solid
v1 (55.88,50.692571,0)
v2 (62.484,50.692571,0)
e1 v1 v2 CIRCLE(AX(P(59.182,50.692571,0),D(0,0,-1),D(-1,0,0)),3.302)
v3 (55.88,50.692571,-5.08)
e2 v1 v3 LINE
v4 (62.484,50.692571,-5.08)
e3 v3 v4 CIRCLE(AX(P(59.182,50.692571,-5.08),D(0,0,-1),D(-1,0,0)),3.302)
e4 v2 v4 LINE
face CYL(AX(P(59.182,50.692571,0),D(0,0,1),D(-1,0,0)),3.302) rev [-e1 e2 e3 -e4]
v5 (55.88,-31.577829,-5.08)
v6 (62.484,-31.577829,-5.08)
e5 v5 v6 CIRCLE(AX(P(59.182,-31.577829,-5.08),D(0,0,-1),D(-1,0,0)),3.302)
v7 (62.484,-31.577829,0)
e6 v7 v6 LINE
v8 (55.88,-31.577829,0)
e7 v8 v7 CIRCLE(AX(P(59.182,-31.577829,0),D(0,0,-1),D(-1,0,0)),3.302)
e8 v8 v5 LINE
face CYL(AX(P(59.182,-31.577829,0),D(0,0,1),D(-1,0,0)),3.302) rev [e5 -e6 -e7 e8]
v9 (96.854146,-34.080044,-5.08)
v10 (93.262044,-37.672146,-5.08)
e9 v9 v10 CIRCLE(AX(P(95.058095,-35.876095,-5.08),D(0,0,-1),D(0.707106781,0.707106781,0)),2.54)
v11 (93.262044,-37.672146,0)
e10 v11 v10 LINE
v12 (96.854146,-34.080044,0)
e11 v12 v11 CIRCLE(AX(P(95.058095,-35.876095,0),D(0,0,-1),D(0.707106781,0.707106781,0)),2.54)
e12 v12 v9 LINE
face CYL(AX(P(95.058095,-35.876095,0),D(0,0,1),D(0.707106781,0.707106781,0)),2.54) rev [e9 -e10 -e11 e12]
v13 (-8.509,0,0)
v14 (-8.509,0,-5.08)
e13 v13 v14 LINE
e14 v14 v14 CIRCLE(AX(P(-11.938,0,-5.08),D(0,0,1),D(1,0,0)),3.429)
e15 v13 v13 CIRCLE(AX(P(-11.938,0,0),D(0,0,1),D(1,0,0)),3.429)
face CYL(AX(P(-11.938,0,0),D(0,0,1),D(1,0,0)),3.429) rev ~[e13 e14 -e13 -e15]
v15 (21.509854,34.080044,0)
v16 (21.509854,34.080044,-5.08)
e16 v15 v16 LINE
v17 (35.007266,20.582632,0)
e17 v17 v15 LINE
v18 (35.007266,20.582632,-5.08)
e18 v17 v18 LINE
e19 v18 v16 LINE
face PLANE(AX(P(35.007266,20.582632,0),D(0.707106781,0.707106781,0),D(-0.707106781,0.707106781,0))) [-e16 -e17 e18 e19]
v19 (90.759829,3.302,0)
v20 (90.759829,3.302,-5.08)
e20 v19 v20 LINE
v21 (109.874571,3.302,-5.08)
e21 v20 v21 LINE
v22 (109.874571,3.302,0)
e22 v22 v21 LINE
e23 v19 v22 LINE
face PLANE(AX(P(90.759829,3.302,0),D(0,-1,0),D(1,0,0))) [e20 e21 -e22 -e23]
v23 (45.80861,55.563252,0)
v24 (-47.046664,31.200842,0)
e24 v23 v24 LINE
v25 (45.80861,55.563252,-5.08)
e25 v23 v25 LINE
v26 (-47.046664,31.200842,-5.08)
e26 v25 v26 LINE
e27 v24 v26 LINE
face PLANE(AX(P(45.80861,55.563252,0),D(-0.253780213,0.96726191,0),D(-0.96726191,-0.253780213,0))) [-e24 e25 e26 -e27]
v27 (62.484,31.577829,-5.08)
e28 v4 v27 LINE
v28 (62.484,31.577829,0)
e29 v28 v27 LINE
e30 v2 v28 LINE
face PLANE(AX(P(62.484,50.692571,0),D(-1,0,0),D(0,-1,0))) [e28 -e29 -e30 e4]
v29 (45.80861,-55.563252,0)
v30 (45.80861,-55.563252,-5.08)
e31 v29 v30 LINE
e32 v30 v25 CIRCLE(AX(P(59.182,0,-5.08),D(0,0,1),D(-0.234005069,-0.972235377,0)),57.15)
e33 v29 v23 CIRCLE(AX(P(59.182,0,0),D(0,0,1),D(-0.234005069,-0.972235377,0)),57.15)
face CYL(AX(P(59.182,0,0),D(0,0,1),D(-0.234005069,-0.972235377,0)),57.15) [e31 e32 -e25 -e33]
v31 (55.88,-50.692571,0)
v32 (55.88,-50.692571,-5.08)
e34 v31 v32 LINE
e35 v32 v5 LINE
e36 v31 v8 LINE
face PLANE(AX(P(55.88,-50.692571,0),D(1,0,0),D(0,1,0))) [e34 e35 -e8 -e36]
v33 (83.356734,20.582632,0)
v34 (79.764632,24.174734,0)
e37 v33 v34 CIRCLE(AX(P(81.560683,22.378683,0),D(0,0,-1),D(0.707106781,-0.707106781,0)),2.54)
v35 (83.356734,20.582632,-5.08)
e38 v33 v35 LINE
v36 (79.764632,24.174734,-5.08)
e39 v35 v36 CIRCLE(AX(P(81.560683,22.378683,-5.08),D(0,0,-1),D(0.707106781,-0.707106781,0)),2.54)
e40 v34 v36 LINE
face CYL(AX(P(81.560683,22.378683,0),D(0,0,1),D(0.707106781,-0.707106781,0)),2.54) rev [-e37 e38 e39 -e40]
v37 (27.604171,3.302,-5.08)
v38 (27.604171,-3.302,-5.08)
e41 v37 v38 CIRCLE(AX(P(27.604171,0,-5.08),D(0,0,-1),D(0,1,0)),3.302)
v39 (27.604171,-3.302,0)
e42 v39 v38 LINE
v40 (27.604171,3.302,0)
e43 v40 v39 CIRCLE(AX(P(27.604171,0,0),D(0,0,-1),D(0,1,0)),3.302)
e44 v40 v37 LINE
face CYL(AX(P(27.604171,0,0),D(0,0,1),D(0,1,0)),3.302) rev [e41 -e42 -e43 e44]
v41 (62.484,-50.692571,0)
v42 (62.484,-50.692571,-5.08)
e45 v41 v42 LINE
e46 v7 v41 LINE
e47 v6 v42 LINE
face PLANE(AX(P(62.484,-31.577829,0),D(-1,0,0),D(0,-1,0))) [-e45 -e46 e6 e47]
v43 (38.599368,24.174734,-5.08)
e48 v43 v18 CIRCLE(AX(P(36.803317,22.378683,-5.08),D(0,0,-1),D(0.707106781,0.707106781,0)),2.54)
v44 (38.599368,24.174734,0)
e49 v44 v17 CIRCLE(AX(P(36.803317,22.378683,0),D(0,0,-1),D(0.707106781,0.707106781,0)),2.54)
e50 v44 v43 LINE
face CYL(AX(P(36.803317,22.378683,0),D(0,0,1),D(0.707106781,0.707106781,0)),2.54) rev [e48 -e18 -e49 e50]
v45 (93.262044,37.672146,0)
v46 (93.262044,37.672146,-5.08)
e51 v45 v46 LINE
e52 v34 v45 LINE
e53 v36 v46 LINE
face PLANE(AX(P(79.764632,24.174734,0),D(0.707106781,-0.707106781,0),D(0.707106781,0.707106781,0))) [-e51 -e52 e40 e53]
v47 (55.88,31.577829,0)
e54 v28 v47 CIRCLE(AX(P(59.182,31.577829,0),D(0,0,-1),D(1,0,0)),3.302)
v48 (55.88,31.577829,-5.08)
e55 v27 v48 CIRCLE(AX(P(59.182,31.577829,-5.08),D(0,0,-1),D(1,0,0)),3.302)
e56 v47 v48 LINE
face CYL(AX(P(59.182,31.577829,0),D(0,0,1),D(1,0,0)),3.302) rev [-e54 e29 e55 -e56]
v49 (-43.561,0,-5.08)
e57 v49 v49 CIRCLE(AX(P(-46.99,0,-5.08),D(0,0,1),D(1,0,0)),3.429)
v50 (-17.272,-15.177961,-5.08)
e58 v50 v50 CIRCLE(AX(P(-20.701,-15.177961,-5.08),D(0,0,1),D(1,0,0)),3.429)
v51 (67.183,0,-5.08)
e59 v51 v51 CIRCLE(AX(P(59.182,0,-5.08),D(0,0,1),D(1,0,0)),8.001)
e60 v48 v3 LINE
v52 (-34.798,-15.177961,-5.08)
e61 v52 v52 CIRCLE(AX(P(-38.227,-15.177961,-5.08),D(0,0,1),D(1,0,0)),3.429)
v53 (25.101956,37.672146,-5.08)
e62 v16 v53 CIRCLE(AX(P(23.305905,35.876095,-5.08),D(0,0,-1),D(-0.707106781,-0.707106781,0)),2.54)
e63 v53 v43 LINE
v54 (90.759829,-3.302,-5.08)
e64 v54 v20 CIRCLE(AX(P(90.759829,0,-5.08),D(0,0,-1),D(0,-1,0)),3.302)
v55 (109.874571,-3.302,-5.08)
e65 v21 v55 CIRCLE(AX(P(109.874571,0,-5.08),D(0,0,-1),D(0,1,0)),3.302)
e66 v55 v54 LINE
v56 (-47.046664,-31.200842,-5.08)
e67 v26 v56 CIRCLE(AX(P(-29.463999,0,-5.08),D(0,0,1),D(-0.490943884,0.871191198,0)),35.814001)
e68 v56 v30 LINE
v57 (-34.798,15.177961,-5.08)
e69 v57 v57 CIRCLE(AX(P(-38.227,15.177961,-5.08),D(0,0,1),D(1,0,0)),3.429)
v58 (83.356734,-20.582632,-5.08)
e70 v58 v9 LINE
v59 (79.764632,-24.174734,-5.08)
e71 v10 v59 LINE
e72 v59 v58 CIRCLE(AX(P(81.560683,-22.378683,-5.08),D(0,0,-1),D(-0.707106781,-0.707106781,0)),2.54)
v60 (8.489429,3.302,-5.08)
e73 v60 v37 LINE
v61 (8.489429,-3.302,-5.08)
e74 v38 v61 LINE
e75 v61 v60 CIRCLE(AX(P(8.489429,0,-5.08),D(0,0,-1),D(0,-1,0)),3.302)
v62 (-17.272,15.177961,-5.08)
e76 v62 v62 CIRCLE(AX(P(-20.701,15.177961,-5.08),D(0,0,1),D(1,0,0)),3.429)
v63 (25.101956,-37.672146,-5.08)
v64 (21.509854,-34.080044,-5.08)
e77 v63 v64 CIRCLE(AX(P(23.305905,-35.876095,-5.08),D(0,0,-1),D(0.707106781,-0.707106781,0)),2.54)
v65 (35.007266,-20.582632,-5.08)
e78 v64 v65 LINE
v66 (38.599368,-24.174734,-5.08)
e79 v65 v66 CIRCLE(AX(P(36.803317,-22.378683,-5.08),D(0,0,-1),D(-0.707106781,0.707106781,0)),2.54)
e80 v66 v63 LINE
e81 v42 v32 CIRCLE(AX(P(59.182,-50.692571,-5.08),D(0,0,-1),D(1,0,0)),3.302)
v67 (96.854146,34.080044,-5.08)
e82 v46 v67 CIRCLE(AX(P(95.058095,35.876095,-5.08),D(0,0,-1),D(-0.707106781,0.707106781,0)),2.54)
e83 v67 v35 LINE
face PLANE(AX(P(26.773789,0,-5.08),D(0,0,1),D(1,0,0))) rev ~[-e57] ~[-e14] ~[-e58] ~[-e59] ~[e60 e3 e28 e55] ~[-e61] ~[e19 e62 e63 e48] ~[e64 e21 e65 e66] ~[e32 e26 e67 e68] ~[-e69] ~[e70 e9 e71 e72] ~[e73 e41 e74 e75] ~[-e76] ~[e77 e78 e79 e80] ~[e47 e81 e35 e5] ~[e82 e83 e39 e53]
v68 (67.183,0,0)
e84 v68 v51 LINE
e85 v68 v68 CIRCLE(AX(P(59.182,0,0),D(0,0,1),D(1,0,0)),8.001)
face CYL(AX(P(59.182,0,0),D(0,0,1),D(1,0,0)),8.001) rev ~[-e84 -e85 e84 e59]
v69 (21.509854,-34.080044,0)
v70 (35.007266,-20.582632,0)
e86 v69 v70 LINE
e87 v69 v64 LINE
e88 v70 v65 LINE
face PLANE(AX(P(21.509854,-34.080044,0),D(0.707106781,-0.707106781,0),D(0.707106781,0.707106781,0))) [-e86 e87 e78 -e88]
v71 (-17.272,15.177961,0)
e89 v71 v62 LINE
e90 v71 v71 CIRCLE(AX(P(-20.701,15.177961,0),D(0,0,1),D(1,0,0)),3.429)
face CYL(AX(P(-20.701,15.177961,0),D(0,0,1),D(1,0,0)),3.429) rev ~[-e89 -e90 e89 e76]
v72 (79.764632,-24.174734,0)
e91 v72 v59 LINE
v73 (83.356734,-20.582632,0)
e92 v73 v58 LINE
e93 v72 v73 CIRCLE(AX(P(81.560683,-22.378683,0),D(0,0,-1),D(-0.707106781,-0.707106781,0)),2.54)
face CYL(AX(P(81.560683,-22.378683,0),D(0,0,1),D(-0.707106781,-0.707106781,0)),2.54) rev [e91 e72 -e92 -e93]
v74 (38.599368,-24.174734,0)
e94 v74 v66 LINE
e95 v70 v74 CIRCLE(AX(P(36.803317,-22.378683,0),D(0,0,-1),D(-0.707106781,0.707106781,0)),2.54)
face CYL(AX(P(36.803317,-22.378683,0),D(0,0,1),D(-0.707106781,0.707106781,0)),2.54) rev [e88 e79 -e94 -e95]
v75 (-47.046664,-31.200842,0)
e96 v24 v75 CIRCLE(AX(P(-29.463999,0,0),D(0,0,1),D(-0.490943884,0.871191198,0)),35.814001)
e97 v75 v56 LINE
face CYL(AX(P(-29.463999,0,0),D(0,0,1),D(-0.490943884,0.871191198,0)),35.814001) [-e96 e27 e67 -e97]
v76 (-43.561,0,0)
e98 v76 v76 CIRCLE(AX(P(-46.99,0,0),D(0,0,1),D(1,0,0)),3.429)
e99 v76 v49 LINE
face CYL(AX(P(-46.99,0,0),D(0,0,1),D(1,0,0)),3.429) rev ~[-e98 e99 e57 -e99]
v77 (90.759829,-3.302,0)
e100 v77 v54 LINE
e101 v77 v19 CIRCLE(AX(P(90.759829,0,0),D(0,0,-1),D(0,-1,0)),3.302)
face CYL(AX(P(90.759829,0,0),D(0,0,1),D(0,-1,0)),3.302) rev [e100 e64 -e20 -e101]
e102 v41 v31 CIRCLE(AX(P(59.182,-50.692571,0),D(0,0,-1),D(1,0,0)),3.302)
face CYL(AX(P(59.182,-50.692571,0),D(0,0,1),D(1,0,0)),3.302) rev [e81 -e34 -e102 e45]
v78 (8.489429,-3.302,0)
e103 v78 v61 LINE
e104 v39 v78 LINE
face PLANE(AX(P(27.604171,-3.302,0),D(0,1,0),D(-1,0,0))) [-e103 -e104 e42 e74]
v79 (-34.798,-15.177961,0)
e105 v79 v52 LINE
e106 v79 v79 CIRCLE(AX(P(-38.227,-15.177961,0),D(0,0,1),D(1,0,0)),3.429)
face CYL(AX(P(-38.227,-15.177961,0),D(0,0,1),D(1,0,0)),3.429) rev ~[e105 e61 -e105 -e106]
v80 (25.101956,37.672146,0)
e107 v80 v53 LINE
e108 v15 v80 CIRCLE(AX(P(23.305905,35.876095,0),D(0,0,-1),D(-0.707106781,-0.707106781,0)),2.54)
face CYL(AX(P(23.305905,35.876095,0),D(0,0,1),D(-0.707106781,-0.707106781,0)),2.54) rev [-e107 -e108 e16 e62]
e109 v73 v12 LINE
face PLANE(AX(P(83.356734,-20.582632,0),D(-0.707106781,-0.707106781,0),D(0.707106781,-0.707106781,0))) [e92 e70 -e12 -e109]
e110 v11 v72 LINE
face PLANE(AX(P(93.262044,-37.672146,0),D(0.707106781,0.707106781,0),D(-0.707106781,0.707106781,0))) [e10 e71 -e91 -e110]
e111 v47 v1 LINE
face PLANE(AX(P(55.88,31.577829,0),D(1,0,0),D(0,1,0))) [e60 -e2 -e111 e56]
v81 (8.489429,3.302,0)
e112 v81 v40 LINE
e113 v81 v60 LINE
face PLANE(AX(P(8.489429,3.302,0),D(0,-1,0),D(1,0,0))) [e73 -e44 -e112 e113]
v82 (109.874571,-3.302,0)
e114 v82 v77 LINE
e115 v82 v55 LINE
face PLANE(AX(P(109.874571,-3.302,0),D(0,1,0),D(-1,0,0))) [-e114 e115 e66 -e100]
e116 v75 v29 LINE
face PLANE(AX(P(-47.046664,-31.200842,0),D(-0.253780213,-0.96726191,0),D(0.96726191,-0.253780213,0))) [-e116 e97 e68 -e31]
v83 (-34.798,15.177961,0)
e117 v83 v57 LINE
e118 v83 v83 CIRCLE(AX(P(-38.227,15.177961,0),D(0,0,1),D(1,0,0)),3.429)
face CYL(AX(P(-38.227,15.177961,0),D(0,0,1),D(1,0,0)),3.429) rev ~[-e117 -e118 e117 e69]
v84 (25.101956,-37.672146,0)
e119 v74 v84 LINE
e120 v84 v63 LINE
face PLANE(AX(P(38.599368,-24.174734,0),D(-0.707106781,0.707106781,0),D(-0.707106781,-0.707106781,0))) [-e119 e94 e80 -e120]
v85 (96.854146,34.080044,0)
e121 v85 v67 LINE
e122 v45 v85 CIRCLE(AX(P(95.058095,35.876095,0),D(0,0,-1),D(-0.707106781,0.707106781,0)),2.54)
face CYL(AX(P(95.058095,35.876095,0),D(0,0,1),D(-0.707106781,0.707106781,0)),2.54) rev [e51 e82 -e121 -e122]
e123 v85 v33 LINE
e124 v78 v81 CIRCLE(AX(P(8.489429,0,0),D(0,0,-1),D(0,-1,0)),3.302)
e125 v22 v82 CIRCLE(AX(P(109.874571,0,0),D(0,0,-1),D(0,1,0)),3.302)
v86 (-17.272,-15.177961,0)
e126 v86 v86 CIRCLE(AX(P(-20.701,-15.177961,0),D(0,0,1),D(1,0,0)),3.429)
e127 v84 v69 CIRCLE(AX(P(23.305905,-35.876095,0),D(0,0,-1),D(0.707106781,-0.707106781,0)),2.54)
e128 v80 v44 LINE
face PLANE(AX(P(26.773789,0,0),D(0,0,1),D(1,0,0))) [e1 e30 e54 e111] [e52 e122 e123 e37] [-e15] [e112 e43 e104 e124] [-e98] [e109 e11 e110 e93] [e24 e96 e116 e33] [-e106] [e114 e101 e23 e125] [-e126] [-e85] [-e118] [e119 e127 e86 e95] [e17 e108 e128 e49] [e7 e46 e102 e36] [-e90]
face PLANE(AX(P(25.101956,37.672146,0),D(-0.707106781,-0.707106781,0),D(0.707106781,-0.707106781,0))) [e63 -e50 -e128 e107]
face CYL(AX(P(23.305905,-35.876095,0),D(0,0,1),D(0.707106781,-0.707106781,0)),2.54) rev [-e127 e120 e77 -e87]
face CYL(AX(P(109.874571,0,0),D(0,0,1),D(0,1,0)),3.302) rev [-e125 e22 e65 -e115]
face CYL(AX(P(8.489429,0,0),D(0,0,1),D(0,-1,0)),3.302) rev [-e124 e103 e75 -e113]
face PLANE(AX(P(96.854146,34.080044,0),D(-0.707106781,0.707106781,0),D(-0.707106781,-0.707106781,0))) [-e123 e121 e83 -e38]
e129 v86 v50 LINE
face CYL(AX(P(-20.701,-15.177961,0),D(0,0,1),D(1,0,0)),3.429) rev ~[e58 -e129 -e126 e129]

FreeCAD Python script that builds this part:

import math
import FreeCAD as App
import Part
import Sketcher
Q = App.Units.Quantity

doc = App.newDocument("Part")
body = doc.addObject("PartDesign::Body", "Body")

sketch1 = body.newObject("Sketcher::SketchObject", "Sketch")
sketch1.AttachmentSupport = (doc.getObject("XY_Plane"), [""])
sketch1.MapMode = "FlatFace"
sketch1.addGeometry([
    Part.ArcOfCircle(Part.Circle(App.Vector(-29.5, 0, 0), App.Vector(0, 0, 1), 35.8), math.radians(119), math.radians(241)),
    Part.LineSegment(App.Vector(-47, -31.2, 0), App.Vector(45.8, -55.6, 0)),
    Part.ArcOfCircle(Part.Circle(App.Vector(59.2, 0, 0), App.Vector(0, 0, 1), 57.2), math.radians(-104), math.radians(104)),
    Part.LineSegment(App.Vector(45.8, 55.6, 0), App.Vector(-47, 31.2, 0)),
    Part.LineSegment(App.Vector(21.5, -34.1, 0), App.Vector(35, -20.6, 0)),
    Part.ArcOfCircle(Part.Circle(App.Vector(36.8, -22.4, 0), App.Vector(0, 0, 1), 2.5), math.radians(-45), math.radians(135)),
    Part.LineSegment(App.Vector(38.6, -24.2, 0), App.Vector(25.1, -37.7, 0)),
    Part.ArcOfCircle(Part.Circle(App.Vector(23.3, -35.9, 0), App.Vector(0, 0, 1), 2.5), math.radians(135), math.radians(315)),
    Part.Circle(App.Vector(-38.2, -15.2, 0), App.Vector(0, 0, 1), 3.4),
    Part.Circle(App.Vector(-20.7, -15.2, 0), App.Vector(0, 0, 1), 3.4),
    Part.LineSegment(App.Vector(55.9, -50.7, 0), App.Vector(55.9, -31.6, 0)),
    Part.ArcOfCircle(Part.Circle(App.Vector(59.2, -31.6, 0), App.Vector(0, 0, 1), 3.3), math.radians(0), math.radians(180)),
    Part.LineSegment(App.Vector(62.5, -31.6, 0), App.Vector(62.5, -50.7, 0)),
    Part.ArcOfCircle(Part.Circle(App.Vector(59.2, -50.7, 0), App.Vector(0, 0, 1), 3.3), math.radians(180), math.radians(360)),
    Part.LineSegment(App.Vector(93.3, -37.7, 0), App.Vector(79.8, -24.2, 0)),
    Part.ArcOfCircle(Part.Circle(App.Vector(81.6, -22.4, 0), App.Vector(0, 0, 1), 2.5), math.radians(45), math.radians(225)),
    Part.LineSegment(App.Vector(83.4, -20.6, 0), App.Vector(96.9, -34.1, 0)),
    Part.ArcOfCircle(Part.Circle(App.Vector(95.1, -35.9, 0), App.Vector(0, 0, 1), 2.5), math.radians(-135), math.radians(45)),
    Part.Circle(App.Vector(-47, 0, 0), App.Vector(0, 0, 1), 3.4),
    Part.Circle(App.Vector(-11.9, 0, 0), App.Vector(0, 0, 1), 3.4),
    Part.Circle(App.Vector(-38.2, 15.2, 0), App.Vector(0, 0, 1), 3.4),
    Part.Circle(App.Vector(-20.7, 15.2, 0), App.Vector(0, 0, 1), 3.4),
    Part.LineSegment(App.Vector(8.5, 3.3, 0), App.Vector(27.6, 3.3, 0)),
    Part.ArcOfCircle(Part.Circle(App.Vector(27.6, 0, 0), App.Vector(0, 0, 1), 3.3), math.radians(-90), math.radians(90)),
    Part.LineSegment(App.Vector(27.6, -3.3, 0), App.Vector(8.5, -3.3, 0)),
    Part.ArcOfCircle(Part.Circle(App.Vector(8.5, 0, 0), App.Vector(0, 0, 1), 3.3), math.radians(90), math.radians(270)),
    Part.LineSegment(App.Vector(25.1, 37.7, 0), App.Vector(38.6, 24.2, 0)),
    Part.ArcOfCircle(Part.Circle(App.Vector(36.8, 22.4, 0), App.Vector(0, 0, 1), 2.5), math.radians(-135), math.radians(45)),
    Part.LineSegment(App.Vector(35, 20.6, 0), App.Vector(21.5, 34.1, 0)),
    Part.ArcOfCircle(Part.Circle(App.Vector(23.3, 35.9, 0), App.Vector(0, 0, 1), 2.5), math.radians(45), math.radians(225)),
    Part.Circle(App.Vector(59.2, 0, 0), App.Vector(0, 0, 1), 8),
    Part.LineSegment(App.Vector(109.9, -3.3, 0), App.Vector(90.8, -3.3, 0)),
    Part.ArcOfCircle(Part.Circle(App.Vector(90.8, 0, 0), App.Vector(0, 0, 1), 3.3), math.radians(90), math.radians(270)),
    Part.LineSegment(App.Vector(90.8, 3.3, 0), App.Vector(109.9, 3.3, 0)),
    Part.ArcOfCircle(Part.Circle(App.Vector(109.9, 0, 0), App.Vector(0, 0, 1), 3.3), math.radians(-90), math.radians(90)),
    Part.LineSegment(App.Vector(62.5, 50.7, 0), App.Vector(62.5, 31.6, 0)),
    Part.ArcOfCircle(Part.Circle(App.Vector(59.2, 31.6, 0), App.Vector(0, 0, 1), 3.3), math.radians(180), math.radians(360)),
    Part.LineSegment(App.Vector(55.9, 31.6, 0), App.Vector(55.9, 50.7, 0)),
    Part.ArcOfCircle(Part.Circle(App.Vector(59.2, 50.7, 0), App.Vector(0, 0, 1), 3.3), math.radians(0), math.radians(180)),
    Part.ArcOfCircle(Part.Circle(App.Vector(95.1, 35.9, 0), App.Vector(0, 0, 1), 2.5), math.radians(-45), math.radians(135)),
    Part.LineSegment(App.Vector(96.9, 34.1, 0), App.Vector(83.4, 20.6, 0)),
    Part.ArcOfCircle(Part.Circle(App.Vector(81.6, 22.4, 0), App.Vector(0, 0, 1), 2.5), math.radians(135), math.radians(315)),
    Part.LineSegment(App.Vector(79.8, 24.2, 0), App.Vector(93.3, 37.7, 0)),
], False)
sketch1.addConstraint([
    Sketcher.Constraint("Coincident", 0, 2, 1, 1),
    Sketcher.Constraint("Coincident", 1, 2, 2, 1),
    Sketcher.Constraint("Coincident", 2, 2, 3, 1),
    Sketcher.Constraint("Coincident", 3, 2, 0, 1),
    Sketcher.Constraint("Tangent", 4, 2, 5, 2),
    Sketcher.Constraint("Tangent", 5, 1, 6, 1),
    Sketcher.Constraint("Tangent", 6, 2, 7, 2),
    Sketcher.Constraint("Tangent", 7, 1, 4, 1),
    Sketcher.Constraint("Tangent", 10, 2, 11, 2),
    Sketcher.Constraint("Tangent", 11, 1, 12, 1),
    Sketcher.Constraint("Tangent", 12, 2, 13, 2),
    Sketcher.Constraint("Tangent", 13, 1, 10, 1),
    Sketcher.Constraint("Tangent", 14, 2, 15, 2),
    Sketcher.Constraint("Tangent", 15, 1, 16, 1),
    Sketcher.Constraint("Tangent", 16, 2, 17, 2),
    Sketcher.Constraint("Tangent", 17, 1, 14, 1),
    Sketcher.Constraint("Tangent", 22, 2, 23, 2),
    Sketcher.Constraint("Tangent", 23, 1, 24, 1),
    Sketcher.Constraint("Tangent", 24, 2, 25, 2),
    Sketcher.Constraint("Tangent", 25, 1, 22, 1),
    Sketcher.Constraint("Tangent", 26, 2, 27, 2),
    Sketcher.Constraint("Tangent", 27, 1, 28, 1),
    Sketcher.Constraint("Tangent", 28, 2, 29, 2),
    Sketcher.Constraint("Tangent", 29, 1, 26, 1),
    Sketcher.Constraint("Tangent", 31, 2, 32, 2),
    Sketcher.Constraint("Tangent", 32, 1, 33, 1),
    Sketcher.Constraint("Tangent", 33, 2, 34, 2),
    Sketcher.Constraint("Tangent", 34, 1, 31, 1),
    Sketcher.Constraint("Tangent", 35, 2, 36, 2),
    Sketcher.Constraint("Tangent", 36, 1, 37, 1),
    Sketcher.Constraint("Tangent", 37, 2, 38, 2),
    Sketcher.Constraint("Tangent", 38, 1, 35, 1),
    Sketcher.Constraint("Tangent", 39, 1, 40, 1),
    Sketcher.Constraint("Tangent", 40, 2, 41, 2),
    Sketcher.Constraint("Tangent", 41, 1, 42, 1),
    Sketcher.Constraint("Tangent", 42, 2, 39, 2),
    Sketcher.Constraint("Vertical", 10),
    Sketcher.Constraint("Vertical", 12),
    Sketcher.Constraint("Horizontal", 22),
    Sketcher.Constraint("Horizontal", 24),
    Sketcher.Constraint("Horizontal", 31),
    Sketcher.Constraint("Horizontal", 33),
    Sketcher.Constraint("Vertical", 35),
    Sketcher.Constraint("Vertical", 37),
    Sketcher.Constraint("Coincident", 30, 3, 2, 3),
    Sketcher.Constraint("Equal", 5, 7),
    Sketcher.Constraint("Equal", 8, 9),
    Sketcher.Constraint("Equal", 7, 15),
    Sketcher.Constraint("Equal", 15, 17),
    Sketcher.Constraint("Equal", 9, 18),
    Sketcher.Constraint("Equal", 18, 19),
    Sketcher.Constraint("Equal", 19, 20),
    Sketcher.Constraint("Equal", 20, 21),
    Sketcher.Constraint("Equal", 13, 23),
    Sketcher.Constraint("Equal", 17, 27),
    Sketcher.Constraint("Equal", 27, 29),
    Sketcher.Constraint("Equal", 25, 32),
    Sketcher.Constraint("Equal", 34, 36),
    Sketcher.Constraint("Equal", 29, 39),
    Sketcher.Constraint("Equal", 39, 41),
    Sketcher.Constraint("Symmetric", 8, 3, 20, 3, -1),
    Sketcher.Constraint("Symmetric", 9, 3, 21, 3, -1),
    Sketcher.Constraint("Symmetric", 5, 3, 27, 3, -1),
    Sketcher.Constraint("Symmetric", 7, 3, 29, 3, -1),
    Sketcher.Constraint("Symmetric", 11, 3, 36, 3, -1),
    Sketcher.Constraint("Symmetric", 17, 3, 39, 3, -1),
    Sketcher.Constraint("Symmetric", 15, 3, 41, 3, -1),
    Sketcher.Constraint("Symmetric", 1, 2, 2, 2, -1),
    Sketcher.Constraint("Symmetric", 0, 2, 3, 2, -1),
    Sketcher.Constraint("PointOnObject", 18, 3, -1),
    Sketcher.Constraint("PointOnObject", 19, 3, -1),
    Sketcher.Constraint("PointOnObject", 23, 3, -1),
    Sketcher.Constraint("PointOnObject", 32, 3, -1),
    Sketcher.Constraint("Perpendicular", 6, 14),
    Sketcher.Constraint("Parallel", 16, 26),
    Sketcher.Constraint("Horizontal", 8, 3, 9, 3),
    Sketcher.Constraint("Horizontal", 5, 3, 15, 3),
    Sketcher.Constraint("Horizontal", 7, 3, 17, 3),
    Sketcher.Constraint("Vertical", 2, 3, 11, 3),
    Sketcher.Constraint("Equal", 24, 31),
    Sketcher.Constraint("Equal", 33, 10),
    Sketcher.Constraint("Equal", 12, 35),
    Sketcher.Constraint("Radius", 5, Q("0.1 in")),
    Sketcher.Constraint("Diameter", 8, Q("0.27 in")),
    Sketcher.Constraint("Diameter", 30, Q("0.63 in")),
    Sketcher.Constraint("Radius", 0, Q("1.41 in")),
    Sketcher.Constraint("Radius", 2, Q("2.25 in")),
    Sketcher.Constraint("Radius", 11, Q("0.13 in")),
    Sketcher.Constraint("DistanceX", -1, 1, 10, 2, Q("2.2 in")),
    Sketcher.Constraint("DistanceX", 0, 3, -1, 1, Q("1.16 in")),
    Sketcher.Constraint("DistanceX", 18, 3, -1, 1, Q("1.85 in")),
    Sketcher.Constraint("DistanceX", 19, 3, -1, 1, Q("0.47 in")),
    Sketcher.Constraint("DistanceX", 8, 3, -1, 1, Q("1.505 in")),
    Sketcher.Constraint("DistanceX", 9, 3, -1, 1, Q("0.815 in")),
    Sketcher.Constraint("DistanceX", 22, 1, 22, 2, 19.114742),
    Sketcher.Constraint("DistanceY", 8, 3, -1, 1, 15.177961),
    Sketcher.Constraint("DistanceY", 11, 3, -1, 1, 31.577829),
    Sketcher.Constraint("DistanceX", -1, 1, 23, 3, 27.604171),
    Sketcher.Constraint("DistanceX", -1, 1, 32, 3, 90.759829),
    Sketcher.Constraint("DistanceX", -1, 1, 1, 2, 45.80861),
    Sketcher.Constraint("DistanceY", 4, 2, -1, 1, 20.582632),
    Sketcher.Constraint("DistanceX", -1, 1, 5, 1, 38.599368),
    Sketcher.Constraint("DistanceX", -1, 1, 41, 1, 79.764632),
    Sketcher.Constraint("Distance", 1, 95.998067),
    Sketcher.Constraint("Distance", 4, 19.088223),
])
pad1 = body.newObject("PartDesign::Pad", "Pad")
pad1.Profile = sketch1
pad1.Length = Q("0.2 in")
pad1.Reversed = True

doc.recompute()
